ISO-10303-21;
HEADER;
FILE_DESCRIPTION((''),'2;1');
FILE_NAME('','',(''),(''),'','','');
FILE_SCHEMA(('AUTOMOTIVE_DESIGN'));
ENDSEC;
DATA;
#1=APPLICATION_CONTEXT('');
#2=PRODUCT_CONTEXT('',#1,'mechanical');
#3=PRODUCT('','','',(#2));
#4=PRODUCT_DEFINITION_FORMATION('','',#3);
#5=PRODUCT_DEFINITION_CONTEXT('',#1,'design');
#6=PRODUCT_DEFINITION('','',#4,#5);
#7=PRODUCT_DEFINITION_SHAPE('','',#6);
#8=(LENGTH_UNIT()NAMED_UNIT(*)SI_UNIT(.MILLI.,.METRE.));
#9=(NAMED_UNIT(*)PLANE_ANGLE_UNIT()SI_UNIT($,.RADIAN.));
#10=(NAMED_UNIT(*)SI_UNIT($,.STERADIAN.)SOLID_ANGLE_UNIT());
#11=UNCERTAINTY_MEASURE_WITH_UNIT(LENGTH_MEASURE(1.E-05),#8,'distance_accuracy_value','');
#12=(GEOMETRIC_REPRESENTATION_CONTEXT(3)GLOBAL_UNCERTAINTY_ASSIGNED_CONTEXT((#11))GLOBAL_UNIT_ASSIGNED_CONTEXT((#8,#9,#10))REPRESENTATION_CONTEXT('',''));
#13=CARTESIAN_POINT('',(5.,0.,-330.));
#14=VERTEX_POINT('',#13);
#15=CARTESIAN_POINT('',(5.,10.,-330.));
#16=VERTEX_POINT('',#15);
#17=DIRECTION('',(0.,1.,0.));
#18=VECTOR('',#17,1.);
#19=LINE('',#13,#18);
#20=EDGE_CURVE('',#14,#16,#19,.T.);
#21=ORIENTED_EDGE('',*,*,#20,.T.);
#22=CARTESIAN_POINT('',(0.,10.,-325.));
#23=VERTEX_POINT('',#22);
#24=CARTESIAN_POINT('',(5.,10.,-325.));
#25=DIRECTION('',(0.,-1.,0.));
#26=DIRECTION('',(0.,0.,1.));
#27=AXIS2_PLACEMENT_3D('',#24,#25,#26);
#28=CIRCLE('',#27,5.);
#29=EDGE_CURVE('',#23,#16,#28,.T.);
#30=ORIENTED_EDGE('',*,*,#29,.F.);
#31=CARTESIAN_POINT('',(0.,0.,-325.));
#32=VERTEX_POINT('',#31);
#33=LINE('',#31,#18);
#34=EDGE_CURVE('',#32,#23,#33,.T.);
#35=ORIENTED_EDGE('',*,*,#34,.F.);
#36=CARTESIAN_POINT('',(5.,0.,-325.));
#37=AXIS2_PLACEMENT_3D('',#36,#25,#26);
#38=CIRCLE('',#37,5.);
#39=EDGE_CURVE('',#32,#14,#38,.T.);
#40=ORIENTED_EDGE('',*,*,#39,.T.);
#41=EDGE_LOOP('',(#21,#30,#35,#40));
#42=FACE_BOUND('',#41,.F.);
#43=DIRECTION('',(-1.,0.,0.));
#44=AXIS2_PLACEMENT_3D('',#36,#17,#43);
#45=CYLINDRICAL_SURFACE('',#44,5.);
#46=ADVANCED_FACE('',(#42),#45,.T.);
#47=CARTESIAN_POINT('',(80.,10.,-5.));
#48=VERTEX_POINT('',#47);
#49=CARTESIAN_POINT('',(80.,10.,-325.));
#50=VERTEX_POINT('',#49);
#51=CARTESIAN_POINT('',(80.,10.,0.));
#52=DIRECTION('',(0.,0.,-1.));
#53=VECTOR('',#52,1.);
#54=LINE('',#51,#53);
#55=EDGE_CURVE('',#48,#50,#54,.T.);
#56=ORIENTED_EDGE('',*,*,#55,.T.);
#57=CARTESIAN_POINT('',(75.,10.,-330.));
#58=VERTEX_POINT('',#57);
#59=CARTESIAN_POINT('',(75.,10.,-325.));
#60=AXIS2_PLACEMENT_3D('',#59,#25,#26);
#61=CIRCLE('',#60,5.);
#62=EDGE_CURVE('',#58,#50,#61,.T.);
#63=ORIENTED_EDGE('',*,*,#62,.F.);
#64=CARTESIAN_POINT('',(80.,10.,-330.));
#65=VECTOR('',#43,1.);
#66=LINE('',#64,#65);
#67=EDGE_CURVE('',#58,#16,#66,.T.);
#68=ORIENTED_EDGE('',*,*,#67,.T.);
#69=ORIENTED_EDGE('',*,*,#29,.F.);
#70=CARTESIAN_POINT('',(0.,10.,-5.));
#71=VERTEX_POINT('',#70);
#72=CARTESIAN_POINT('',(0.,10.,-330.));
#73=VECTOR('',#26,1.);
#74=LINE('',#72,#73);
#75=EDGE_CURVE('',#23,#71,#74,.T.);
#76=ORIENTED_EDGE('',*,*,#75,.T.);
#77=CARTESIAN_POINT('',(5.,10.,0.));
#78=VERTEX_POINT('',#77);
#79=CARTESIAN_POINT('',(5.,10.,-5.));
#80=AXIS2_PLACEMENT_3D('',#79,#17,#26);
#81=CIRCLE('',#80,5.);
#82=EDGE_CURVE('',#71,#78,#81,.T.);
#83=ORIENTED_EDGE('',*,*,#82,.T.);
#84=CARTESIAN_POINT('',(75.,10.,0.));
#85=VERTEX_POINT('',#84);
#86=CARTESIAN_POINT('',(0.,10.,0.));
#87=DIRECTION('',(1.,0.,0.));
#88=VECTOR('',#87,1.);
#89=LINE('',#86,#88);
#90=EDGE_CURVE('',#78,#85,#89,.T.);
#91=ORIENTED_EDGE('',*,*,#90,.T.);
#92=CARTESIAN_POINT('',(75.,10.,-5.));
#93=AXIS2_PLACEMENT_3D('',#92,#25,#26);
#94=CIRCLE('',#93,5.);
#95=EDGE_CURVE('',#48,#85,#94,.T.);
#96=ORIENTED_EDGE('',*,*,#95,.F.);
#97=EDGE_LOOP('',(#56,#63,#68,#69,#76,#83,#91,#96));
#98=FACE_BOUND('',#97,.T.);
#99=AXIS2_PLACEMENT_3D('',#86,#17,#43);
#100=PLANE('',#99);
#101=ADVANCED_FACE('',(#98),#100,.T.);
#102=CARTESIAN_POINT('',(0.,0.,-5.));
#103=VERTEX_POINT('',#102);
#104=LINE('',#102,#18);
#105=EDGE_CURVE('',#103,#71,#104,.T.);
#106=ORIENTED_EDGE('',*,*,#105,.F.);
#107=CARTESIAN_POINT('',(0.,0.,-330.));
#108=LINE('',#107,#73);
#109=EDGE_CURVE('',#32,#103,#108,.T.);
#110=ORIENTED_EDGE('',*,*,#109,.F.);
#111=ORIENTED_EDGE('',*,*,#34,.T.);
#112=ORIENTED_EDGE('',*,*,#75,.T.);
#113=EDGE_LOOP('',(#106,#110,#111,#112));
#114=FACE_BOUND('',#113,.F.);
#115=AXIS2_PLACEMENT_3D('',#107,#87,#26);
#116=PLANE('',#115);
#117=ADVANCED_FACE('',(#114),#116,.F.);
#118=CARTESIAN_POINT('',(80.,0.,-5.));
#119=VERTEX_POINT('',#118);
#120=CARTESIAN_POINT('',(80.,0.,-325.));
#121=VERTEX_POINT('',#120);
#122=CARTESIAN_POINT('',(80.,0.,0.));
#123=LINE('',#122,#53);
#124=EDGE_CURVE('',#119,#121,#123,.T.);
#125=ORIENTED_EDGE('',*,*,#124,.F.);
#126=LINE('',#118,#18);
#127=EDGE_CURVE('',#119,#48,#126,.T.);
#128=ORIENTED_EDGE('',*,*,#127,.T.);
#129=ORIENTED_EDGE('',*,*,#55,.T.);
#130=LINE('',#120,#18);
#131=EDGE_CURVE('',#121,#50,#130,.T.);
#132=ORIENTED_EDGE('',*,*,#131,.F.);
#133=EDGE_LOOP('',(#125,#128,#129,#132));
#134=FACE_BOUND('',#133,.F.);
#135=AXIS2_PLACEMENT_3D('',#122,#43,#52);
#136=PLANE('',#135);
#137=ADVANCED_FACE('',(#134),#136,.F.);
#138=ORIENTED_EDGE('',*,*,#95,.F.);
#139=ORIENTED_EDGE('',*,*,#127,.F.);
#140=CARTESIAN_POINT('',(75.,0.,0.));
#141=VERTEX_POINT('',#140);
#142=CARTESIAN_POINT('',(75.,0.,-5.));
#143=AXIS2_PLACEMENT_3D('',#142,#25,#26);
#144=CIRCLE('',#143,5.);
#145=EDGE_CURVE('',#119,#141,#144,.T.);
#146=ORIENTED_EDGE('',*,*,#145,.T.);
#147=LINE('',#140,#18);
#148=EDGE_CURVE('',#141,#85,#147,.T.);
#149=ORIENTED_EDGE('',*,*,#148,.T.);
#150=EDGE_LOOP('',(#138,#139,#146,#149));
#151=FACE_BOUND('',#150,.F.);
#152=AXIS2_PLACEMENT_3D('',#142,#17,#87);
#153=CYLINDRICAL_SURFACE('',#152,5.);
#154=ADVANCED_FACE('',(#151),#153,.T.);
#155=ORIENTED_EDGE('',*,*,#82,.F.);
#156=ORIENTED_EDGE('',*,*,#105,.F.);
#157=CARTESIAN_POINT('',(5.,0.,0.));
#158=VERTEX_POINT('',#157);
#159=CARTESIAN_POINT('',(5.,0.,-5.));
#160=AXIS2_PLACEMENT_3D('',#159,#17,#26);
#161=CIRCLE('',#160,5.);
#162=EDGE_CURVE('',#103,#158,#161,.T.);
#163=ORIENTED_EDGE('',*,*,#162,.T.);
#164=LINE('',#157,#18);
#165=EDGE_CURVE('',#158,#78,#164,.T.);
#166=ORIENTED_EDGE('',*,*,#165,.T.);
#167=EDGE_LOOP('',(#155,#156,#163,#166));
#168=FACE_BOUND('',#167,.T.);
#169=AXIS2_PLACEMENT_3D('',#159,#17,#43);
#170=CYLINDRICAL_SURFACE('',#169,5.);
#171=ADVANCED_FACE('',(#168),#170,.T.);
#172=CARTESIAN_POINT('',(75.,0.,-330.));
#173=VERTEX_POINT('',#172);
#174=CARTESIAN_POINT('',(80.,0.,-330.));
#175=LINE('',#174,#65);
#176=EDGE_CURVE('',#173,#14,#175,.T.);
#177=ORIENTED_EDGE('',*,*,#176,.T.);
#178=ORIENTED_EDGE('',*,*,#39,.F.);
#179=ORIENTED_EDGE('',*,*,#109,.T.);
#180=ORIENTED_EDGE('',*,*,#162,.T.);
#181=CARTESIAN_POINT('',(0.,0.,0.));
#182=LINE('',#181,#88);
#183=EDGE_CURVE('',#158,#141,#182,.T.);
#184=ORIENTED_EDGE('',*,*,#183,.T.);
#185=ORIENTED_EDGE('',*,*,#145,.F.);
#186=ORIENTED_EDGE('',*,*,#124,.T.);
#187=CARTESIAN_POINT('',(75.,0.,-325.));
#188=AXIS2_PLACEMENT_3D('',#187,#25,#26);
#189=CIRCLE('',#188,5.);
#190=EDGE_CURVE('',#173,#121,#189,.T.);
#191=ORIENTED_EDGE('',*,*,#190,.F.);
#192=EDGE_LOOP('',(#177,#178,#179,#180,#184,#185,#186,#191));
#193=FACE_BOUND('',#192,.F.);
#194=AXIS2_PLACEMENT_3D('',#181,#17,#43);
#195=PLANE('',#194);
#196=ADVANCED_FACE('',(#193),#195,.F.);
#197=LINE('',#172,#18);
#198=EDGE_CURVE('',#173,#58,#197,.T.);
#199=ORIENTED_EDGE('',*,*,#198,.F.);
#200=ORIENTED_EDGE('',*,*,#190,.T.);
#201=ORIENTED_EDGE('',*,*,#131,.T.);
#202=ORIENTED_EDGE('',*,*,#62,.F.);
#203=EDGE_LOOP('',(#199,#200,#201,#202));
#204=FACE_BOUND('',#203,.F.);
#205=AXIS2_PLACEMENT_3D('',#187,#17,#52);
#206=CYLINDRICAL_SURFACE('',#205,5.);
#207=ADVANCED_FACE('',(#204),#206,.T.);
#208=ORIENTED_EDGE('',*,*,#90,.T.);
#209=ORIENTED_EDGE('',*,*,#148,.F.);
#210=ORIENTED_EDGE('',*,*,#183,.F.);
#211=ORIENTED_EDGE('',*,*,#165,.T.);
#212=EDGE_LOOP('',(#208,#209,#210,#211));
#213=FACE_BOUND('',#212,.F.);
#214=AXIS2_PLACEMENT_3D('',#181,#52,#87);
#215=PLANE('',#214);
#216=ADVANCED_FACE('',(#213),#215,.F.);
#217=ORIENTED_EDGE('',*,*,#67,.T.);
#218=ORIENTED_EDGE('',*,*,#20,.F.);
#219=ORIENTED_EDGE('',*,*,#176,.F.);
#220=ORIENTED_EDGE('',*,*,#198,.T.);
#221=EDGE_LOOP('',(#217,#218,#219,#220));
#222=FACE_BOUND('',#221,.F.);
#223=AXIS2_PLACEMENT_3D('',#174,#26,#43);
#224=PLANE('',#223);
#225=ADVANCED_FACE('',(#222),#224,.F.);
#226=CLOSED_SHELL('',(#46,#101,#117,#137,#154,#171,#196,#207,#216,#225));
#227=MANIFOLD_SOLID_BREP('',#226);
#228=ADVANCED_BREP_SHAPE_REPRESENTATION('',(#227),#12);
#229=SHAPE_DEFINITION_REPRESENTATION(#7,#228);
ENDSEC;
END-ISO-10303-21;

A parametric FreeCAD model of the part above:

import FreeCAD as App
import Part
import Sketcher


def edges_at(feature, points):
    """Names of the edges that pass closest to the given points."""
    edges = feature.Shape.Edges
    near = lambda p: min(range(len(edges)), key=lambda i: edges[i].distToShape(Part.Vertex(*p))[0])
    return sorted({f"Edge{near(p) + 1}" for p in points})


def add_polygon(sketch, points):
    """Adds a closed chain of lines whose ends are joined by coincident constraints."""
    first, n = sketch.GeometryCount, len(points)
    for a, b in zip(points, points[1:] + points[:1]):
        sketch.addGeometry(Part.LineSegment(App.Vector(*a, 0), App.Vector(*b, 0)), False)
    for i in range(n):
        sketch.addConstraint(Sketcher.Constraint("Coincident", first + i, 2, first + (i + 1) % n, 1))

doc = App.newDocument("Part")
body = doc.addObject("PartDesign::Body", "Body")

# Sketch on XZ plane
sketch1 = body.newObject("Sketcher::SketchObject", "Sketch")
sketch1.AttachmentSupport = (doc.getObject("XZ_Plane"), [""])
sketch1.MapMode = "FlatFace"
add_polygon(sketch1, [(0, -330), (0, 0), (80, 0), (80, -330)])  # lines 0-3
sketch1.addConstraint([
    Sketcher.Constraint("Vertical", 0),
    Sketcher.Constraint("Horizontal", 1),
    Sketcher.Constraint("Vertical", 2),
    Sketcher.Constraint("Horizontal", 3),
    Sketcher.Constraint("Coincident", 0, 2, -1, 1),
    Sketcher.Constraint("DistanceX", 1, 1, 1, 2, 80.0),
    Sketcher.Constraint("DistanceY", 0, 1, 0, 2, 330.0),
])
pad1 = body.newObject("PartDesign::Pad", "Pad")
pad1.Profile = sketch1
pad1.Length = 10
pad1.Reversed = True
doc.recompute()

fillet = body.newObject("PartDesign::Fillet", "Fillet")
fillet.Base = (pad1, edges_at(pad1, [
    (0, 5, 0),
    (80, 5, 0),
    (0, 5, -330),
    (80, 5, -330),
]))
fillet.Radius = 5

doc.recompute()
